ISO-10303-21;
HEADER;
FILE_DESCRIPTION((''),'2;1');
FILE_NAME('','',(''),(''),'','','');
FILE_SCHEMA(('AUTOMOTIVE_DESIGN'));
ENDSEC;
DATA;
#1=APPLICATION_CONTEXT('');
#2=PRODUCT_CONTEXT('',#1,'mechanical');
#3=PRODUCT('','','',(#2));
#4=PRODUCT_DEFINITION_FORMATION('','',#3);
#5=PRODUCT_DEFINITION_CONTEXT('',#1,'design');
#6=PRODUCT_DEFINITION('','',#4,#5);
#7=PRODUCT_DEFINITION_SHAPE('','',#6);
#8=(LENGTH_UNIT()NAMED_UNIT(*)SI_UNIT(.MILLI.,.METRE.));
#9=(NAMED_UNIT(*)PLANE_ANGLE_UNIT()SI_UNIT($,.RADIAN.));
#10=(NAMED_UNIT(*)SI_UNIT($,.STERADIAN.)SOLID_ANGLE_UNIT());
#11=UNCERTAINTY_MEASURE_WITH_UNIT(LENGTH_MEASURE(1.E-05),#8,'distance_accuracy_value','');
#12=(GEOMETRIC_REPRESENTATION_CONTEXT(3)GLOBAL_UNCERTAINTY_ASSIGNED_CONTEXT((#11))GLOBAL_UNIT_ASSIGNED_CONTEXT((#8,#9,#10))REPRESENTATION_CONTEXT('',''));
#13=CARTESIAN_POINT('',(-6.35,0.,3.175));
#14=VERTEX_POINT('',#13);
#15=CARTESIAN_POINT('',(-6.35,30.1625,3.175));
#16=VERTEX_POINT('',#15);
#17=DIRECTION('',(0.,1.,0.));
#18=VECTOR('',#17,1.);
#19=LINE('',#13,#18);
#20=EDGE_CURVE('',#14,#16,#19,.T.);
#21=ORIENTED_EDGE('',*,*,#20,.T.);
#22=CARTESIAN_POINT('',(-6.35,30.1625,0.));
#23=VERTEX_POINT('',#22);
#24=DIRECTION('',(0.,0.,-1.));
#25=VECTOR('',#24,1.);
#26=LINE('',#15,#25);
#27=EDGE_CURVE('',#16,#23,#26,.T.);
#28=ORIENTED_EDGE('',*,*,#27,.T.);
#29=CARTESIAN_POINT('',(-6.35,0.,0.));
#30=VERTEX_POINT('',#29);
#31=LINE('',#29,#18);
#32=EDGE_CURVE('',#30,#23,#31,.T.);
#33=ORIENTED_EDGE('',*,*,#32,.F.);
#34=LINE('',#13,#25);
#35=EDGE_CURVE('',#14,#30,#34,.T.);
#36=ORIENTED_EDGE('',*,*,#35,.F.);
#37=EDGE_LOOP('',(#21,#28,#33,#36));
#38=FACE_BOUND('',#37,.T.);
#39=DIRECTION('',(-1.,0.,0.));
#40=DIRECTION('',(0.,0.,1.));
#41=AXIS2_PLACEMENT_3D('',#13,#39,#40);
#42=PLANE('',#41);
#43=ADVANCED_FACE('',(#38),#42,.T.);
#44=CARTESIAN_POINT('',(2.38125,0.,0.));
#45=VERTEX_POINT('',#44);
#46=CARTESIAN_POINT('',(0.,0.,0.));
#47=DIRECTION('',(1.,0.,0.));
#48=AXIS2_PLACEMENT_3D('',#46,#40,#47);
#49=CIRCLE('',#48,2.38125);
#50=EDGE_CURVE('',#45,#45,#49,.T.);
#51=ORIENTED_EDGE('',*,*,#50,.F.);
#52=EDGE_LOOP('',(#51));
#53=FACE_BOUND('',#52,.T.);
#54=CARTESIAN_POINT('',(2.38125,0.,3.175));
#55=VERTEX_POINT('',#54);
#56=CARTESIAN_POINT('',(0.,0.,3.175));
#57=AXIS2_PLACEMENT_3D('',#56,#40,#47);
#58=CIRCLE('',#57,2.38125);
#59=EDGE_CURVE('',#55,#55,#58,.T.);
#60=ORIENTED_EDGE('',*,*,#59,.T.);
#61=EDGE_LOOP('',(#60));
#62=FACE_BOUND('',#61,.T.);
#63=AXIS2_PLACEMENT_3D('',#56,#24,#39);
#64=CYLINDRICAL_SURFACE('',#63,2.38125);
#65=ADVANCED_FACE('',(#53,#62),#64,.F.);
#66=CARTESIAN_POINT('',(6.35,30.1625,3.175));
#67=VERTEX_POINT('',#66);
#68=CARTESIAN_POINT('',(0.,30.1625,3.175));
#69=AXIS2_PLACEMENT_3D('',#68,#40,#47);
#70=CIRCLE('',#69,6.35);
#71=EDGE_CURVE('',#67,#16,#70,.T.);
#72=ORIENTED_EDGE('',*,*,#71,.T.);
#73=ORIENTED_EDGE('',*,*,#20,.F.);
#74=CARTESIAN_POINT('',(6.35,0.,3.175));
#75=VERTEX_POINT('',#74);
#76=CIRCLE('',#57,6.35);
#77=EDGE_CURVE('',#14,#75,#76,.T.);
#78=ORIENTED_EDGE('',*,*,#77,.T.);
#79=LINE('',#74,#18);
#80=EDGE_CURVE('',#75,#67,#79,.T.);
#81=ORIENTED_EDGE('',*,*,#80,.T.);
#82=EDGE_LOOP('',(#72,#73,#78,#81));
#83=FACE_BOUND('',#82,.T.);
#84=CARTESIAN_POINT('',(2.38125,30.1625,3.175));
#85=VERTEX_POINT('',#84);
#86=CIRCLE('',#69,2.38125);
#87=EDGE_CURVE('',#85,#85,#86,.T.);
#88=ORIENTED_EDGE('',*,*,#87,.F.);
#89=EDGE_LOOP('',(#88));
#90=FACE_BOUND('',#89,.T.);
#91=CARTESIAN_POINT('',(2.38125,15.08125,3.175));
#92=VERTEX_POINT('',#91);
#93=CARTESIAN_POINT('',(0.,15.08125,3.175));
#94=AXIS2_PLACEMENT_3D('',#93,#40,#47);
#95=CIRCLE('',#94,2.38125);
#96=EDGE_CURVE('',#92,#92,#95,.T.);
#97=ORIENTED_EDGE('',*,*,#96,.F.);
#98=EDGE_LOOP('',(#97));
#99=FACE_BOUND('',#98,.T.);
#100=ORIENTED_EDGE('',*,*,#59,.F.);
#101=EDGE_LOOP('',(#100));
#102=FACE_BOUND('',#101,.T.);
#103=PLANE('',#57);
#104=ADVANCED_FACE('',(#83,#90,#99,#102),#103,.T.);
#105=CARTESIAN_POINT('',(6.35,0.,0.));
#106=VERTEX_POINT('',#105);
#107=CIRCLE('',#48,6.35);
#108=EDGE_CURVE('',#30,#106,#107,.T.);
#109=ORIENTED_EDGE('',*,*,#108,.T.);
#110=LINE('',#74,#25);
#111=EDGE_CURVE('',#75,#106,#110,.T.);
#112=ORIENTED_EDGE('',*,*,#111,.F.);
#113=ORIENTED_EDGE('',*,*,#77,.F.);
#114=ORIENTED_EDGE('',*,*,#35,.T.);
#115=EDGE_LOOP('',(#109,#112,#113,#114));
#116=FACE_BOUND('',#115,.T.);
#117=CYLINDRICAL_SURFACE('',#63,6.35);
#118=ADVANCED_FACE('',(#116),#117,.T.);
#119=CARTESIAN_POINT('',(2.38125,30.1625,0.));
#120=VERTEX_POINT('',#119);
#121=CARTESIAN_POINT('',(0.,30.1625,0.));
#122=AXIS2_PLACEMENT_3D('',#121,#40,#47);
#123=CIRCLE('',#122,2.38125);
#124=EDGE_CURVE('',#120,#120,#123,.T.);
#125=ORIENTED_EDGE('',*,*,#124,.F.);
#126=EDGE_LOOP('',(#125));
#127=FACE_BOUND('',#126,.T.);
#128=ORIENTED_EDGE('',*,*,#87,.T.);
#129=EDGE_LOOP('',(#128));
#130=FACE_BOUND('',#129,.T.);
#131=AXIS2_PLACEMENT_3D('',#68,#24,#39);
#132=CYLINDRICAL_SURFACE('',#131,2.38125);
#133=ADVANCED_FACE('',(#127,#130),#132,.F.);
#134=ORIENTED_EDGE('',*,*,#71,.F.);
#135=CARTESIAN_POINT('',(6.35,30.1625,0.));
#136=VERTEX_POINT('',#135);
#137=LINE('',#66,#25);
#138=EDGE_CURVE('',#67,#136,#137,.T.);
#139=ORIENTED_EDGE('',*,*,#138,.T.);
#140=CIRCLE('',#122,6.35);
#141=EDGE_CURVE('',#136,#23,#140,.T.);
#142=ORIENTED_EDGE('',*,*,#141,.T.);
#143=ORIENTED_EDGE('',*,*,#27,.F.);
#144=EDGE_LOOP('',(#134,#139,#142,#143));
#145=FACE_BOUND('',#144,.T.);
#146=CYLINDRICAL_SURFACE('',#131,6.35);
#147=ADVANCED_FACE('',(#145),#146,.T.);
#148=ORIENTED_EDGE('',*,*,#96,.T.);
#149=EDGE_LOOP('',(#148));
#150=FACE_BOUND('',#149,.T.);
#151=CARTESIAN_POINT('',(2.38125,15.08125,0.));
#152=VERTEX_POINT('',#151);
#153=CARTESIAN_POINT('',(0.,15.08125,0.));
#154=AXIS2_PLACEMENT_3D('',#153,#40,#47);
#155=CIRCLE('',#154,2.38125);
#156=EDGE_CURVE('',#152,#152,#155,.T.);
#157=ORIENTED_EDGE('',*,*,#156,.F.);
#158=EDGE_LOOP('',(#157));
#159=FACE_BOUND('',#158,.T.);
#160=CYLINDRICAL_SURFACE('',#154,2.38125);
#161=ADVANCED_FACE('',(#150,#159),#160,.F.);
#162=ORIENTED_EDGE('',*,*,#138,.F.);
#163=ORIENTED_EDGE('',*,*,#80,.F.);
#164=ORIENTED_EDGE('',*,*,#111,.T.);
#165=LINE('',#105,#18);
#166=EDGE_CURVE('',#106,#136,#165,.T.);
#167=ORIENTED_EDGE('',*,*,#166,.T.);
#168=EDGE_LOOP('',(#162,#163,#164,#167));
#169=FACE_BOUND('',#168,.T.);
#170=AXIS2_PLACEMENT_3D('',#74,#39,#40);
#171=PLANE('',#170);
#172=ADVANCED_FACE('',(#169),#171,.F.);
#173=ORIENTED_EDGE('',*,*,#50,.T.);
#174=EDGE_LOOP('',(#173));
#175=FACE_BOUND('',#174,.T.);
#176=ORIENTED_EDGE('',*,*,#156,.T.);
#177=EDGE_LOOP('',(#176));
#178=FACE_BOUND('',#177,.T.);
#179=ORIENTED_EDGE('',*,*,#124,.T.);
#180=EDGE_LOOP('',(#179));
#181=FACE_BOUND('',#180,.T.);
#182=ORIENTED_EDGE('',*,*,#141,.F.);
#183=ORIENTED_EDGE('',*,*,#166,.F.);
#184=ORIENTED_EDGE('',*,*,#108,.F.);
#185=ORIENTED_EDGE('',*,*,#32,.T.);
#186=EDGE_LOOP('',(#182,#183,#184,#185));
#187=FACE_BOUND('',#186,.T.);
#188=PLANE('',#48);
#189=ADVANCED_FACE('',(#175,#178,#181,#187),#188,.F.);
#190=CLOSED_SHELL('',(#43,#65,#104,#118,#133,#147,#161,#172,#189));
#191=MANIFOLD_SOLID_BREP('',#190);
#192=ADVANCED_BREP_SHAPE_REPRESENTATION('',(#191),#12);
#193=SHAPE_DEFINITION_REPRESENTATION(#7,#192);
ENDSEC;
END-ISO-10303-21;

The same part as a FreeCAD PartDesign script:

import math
import FreeCAD as App
import Part
import Sketcher

V = App.Vector
Q = App.Units.Quantity

doc = App.newDocument("Part")
body = doc.addObject("PartDesign::Body", "Body")

# Sketch on XY plane
sketch1 = body.newObject("Sketcher::SketchObject", "Sketch")
sketch1.AttachmentSupport = (doc.getObject("XY_Plane"), [""])
sketch1.MapMode = "FlatFace"
sketch1.addGeometry([
    Part.LineSegment(V(-6.35, 30.1625, 0), V(-6.35, 0, 0)),  # 0
    Part.ArcOfCircle(Part.Circle(V(0, 0, 0), V(0, 0, 1), 6.35), math.radians(180), math.radians(360)),  # 1
    Part.LineSegment(V(6.35, 0, 0), V(6.35, 30.1625, 0)),  # 2
    Part.ArcOfCircle(Part.Circle(V(0, 30.1625, 0), V(0, 0, 1), 6.35), math.radians(0), math.radians(180)),  # 3
    Part.Circle(V(0, 0, 0), V(0, 0, 1), 2.38125),  # 4
    Part.Circle(V(0, 30.1625, 0), V(0, 0, 1), 2.38125),  # 5
], False)
sketch1.addConstraint([
    Sketcher.Constraint("Tangent", 0, 2, 1, 1),
    Sketcher.Constraint("Tangent", 1, 2, 2, 1),
    Sketcher.Constraint("Tangent", 2, 2, 3, 1),
    Sketcher.Constraint("Tangent", 3, 2, 0, 1),
    Sketcher.Constraint("Vertical", 0),
    Sketcher.Constraint("Vertical", 2),
    Sketcher.Constraint("Coincident", 1, 3, -1, 1),
    Sketcher.Constraint("Coincident", 4, 3, -1, 1),
    Sketcher.Constraint("Coincident", 5, 3, 3, 3),
    Sketcher.Constraint("Equal", 4, 5),
    Sketcher.Constraint("Radius", 1, Q("0.25 in")),
    Sketcher.Constraint("Diameter", 4, Q("0.1875 in")),
    Sketcher.Constraint("DistanceY", 0, 2, 0, 1, Q("1.1875 in")),
])
pad1 = body.newObject("PartDesign::Pad", "Pad")
pad1.Profile = sketch1
pad1.Length = Q("0.125 in")

# Sketch on XY plane
sketch2 = body.newObject("Sketcher::SketchObject", "Sketch001")
sketch2.AttachmentSupport = (doc.getObject("XY_Plane"), [""])
sketch2.MapMode = "FlatFace"
sketch2.AttachmentOffset = App.Placement(V(0, 0, 0.125 * 25.4), App.Rotation())
sketch2.addGeometry(Part.Circle(V(0, 15.08125, 0), V(0, 0, 1), 2.38125), False)
sketch2.addConstraint([
    Sketcher.Constraint("PointOnObject", 0, 3, -2),
    Sketcher.Constraint("Diameter", 0, Q("0.1875 in")),
    Sketcher.Constraint("DistanceY", -1, 1, 0, 3, Q("0.59375 in")),
])
pocket1 = body.newObject("PartDesign::Pocket", "Pocket")
pocket1.Profile = sketch2
pocket1.Length = Q("0.125 in")

doc.recompute()
